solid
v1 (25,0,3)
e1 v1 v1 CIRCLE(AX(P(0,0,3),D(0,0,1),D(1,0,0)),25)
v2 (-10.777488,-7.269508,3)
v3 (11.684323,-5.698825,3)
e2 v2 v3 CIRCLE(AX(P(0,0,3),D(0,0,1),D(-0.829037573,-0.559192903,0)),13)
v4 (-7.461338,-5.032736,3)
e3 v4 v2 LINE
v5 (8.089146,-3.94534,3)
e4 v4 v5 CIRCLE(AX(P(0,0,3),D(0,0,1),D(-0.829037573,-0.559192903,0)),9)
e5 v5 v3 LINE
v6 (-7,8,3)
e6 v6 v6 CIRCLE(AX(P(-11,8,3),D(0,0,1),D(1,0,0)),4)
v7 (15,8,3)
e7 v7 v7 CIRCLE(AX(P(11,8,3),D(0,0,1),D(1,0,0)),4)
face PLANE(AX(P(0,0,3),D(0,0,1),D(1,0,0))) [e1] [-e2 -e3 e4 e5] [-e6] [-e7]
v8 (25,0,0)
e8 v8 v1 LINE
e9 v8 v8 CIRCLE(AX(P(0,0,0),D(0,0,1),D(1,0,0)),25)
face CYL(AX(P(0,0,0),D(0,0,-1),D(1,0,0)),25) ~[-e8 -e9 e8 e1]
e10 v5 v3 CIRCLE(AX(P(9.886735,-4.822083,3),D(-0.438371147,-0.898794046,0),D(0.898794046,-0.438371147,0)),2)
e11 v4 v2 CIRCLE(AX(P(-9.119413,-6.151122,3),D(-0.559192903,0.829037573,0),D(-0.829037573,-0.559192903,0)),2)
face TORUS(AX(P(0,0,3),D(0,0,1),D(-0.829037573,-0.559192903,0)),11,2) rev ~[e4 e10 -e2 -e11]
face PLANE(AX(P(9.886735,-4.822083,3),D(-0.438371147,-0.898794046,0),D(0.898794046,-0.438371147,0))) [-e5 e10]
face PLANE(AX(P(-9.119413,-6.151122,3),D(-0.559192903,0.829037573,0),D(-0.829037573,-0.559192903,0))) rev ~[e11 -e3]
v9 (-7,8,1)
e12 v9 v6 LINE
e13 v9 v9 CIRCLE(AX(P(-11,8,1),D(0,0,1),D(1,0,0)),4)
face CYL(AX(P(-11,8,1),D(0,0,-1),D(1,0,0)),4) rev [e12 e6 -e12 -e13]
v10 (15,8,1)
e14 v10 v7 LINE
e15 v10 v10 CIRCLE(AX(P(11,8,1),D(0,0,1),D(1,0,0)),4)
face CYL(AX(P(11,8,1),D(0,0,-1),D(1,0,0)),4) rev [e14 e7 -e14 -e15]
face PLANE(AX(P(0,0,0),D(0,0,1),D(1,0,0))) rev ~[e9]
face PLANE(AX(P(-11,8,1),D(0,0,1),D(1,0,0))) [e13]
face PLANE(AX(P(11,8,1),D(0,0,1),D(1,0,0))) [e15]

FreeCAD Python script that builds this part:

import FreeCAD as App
import Part
import Sketcher
from FreeCAD import Vector
Q = App.Units.Quantity

doc = App.newDocument("Part")
params = doc.addObject("Spreadsheet::Sheet", "Params")
for row, (alias, value) in enumerate([
    ("sketch1_diameter", "8 mm"),
    ("pad1_length", "2 mm"),
    ("sketch2_diameter", "8 mm"),
    ("pad2_length", "2 mm"),
    ("sketch3_diameter", "4 mm"),
    ("revolution_angle", "120 deg"),
    ("sketch4_diameter", "50 mm"),
    ("pad3_length", "3 mm"),
], start=1):
    params.set(f"A{row}", alias)
    params.set(f"B{row}", "=" + value)
    params.setAlias(f"B{row}", alias)

body = doc.addObject("PartDesign::Body", "Body")

sketch1 = doc.addObject("Sketcher::SketchObject", "Sketch")
body.addObject(sketch1)
sketch1.AttachmentSupport = (doc.XY_Plane, [""])
sketch1.MapMode = "FlatFace"
sketch1.AttachmentOffset = App.Placement(Vector(0, 0, 1), App.Rotation())
sketch1.addGeometry(Part.Circle(Vector(11, 8, 0), Vector(0, 0, 1), 4), False)
sketch1.addConstraint([
    Sketcher.Constraint("Diameter", 0, Q("8 mm")),
    Sketcher.Constraint("DistanceX", -1, 1, 0, 3, Q("11 mm")),
    Sketcher.Constraint("DistanceY", -1, 1, 0, 3, Q("8 mm")),
])
sketch1.setExpression("Constraints[0]", "Params.sketch1_diameter")
pad1 = doc.addObject("PartDesign::Pad", "Pad")
body.addObject(pad1)
pad1.Profile = sketch1
pad1.setExpression("Length", "Params.pad1_length")
body2 = doc.addObject("PartDesign::Body", "Body001")

sketch2 = doc.addObject("Sketcher::SketchObject", "Sketch001")
body2.addObject(sketch2)
sketch2.AttachmentSupport = (doc.getObject("XY_Plane001"), [""])
sketch2.MapMode = "FlatFace"
sketch2.AttachmentOffset = App.Placement(Vector(0, 0, 1), App.Rotation())
sketch2.addGeometry(Part.Circle(Vector(-11, 8, 0), Vector(0, 0, 1), 4), False)
sketch2.addConstraint([
    Sketcher.Constraint("Diameter", 0, Q("8 mm")),
    Sketcher.Constraint("DistanceX", 0, 3, -1, 1, Q("11 mm")),
    Sketcher.Constraint("DistanceY", -1, 1, 0, 3, Q("8 mm")),
])
sketch2.setExpression("Constraints[0]", "Params.sketch2_diameter")
pad2 = doc.addObject("PartDesign::Pad", "Pad001")
body2.addObject(pad2)
pad2.Profile = sketch2
pad2.setExpression("Length", "Params.pad2_length")
body3 = doc.addObject("PartDesign::Body", "Body002")

sketch3 = doc.addObject("Sketcher::SketchObject", "Sketch002")
body3.addObject(sketch3)
sketch3.AttachmentSupport = (doc.getObject("XZ_Plane002"), [""])
sketch3.MapMode = "FlatFace"
sketch3.addGeometry(Part.Circle(Vector(11, 0, 0), Vector(0, 0, 1), 2), False)
sketch3.addConstraint([
    Sketcher.Constraint("PointOnObject", 0, 3, -1),
    Sketcher.Constraint("Diameter", 0, Q("4 mm")),
    Sketcher.Constraint("DistanceX", -1, 1, 0, 3, Q("11 mm")),
])
sketch3.setExpression("Constraints[1]", "Params.sketch3_diameter")
revolution = doc.addObject("PartDesign::Revolution", "Revolution")
body3.addObject(revolution)
revolution.Profile = sketch3
revolution.ReferenceAxis = (sketch3, ["V_Axis"])
revolution.setExpression("Angle", "Params.revolution_angle")
body4 = doc.addObject("PartDesign::Body", "Body003")
doc.recompute()

body3.Placement = App.Placement(Vector(0, 0, 3), App.Rotation(Vector(0, 0, -1), 146))
boolean = doc.addObject("PartDesign::Boolean", "Boolean")
body4.addObject(boolean)
boolean.Type = "Fuse"
boolean.addObjects([body3])
body5 = doc.addObject("PartDesign::Body", "Body004")

sketch4 = doc.addObject("Sketcher::SketchObject", "Sketch003")
body5.addObject(sketch4)
sketch4.AttachmentSupport = (doc.getObject("XY_Plane004"), [""])
sketch4.MapMode = "FlatFace"
sketch4.addGeometry(Part.Circle(Vector(0, 0, 0), Vector(0, 0, 1), 25), False)
sketch4.addConstraint([
    Sketcher.Constraint("Coincident", 0, 3, -1, 1),
    Sketcher.Constraint("Diameter", 0, Q("50 mm")),
])
sketch4.setExpression("Constraints[1]", "Params.sketch4_diameter")
pad3 = doc.addObject("PartDesign::Pad", "Pad002")
body5.addObject(pad3)
pad3.Profile = sketch4
pad3.setExpression("Length", "Params.pad3_length")
doc.recompute()

boolean2 = doc.addObject("PartDesign::Boolean", "Boolean001")
body5.addObject(boolean2)
boolean2.Type = "Cut"
boolean2.addObjects([body4])
doc.recompute()

boolean3 = doc.addObject("PartDesign::Boolean", "Boolean002")
body5.addObject(boolean3)
boolean3.Type = "Cut"
boolean3.addObjects([body2])
doc.recompute()

boolean4 = doc.addObject("PartDesign::Boolean", "Boolean003")
body5.addObject(boolean4)
boolean4.Type = "Cut"
boolean4.addObjects([body])

doc.recompute()
